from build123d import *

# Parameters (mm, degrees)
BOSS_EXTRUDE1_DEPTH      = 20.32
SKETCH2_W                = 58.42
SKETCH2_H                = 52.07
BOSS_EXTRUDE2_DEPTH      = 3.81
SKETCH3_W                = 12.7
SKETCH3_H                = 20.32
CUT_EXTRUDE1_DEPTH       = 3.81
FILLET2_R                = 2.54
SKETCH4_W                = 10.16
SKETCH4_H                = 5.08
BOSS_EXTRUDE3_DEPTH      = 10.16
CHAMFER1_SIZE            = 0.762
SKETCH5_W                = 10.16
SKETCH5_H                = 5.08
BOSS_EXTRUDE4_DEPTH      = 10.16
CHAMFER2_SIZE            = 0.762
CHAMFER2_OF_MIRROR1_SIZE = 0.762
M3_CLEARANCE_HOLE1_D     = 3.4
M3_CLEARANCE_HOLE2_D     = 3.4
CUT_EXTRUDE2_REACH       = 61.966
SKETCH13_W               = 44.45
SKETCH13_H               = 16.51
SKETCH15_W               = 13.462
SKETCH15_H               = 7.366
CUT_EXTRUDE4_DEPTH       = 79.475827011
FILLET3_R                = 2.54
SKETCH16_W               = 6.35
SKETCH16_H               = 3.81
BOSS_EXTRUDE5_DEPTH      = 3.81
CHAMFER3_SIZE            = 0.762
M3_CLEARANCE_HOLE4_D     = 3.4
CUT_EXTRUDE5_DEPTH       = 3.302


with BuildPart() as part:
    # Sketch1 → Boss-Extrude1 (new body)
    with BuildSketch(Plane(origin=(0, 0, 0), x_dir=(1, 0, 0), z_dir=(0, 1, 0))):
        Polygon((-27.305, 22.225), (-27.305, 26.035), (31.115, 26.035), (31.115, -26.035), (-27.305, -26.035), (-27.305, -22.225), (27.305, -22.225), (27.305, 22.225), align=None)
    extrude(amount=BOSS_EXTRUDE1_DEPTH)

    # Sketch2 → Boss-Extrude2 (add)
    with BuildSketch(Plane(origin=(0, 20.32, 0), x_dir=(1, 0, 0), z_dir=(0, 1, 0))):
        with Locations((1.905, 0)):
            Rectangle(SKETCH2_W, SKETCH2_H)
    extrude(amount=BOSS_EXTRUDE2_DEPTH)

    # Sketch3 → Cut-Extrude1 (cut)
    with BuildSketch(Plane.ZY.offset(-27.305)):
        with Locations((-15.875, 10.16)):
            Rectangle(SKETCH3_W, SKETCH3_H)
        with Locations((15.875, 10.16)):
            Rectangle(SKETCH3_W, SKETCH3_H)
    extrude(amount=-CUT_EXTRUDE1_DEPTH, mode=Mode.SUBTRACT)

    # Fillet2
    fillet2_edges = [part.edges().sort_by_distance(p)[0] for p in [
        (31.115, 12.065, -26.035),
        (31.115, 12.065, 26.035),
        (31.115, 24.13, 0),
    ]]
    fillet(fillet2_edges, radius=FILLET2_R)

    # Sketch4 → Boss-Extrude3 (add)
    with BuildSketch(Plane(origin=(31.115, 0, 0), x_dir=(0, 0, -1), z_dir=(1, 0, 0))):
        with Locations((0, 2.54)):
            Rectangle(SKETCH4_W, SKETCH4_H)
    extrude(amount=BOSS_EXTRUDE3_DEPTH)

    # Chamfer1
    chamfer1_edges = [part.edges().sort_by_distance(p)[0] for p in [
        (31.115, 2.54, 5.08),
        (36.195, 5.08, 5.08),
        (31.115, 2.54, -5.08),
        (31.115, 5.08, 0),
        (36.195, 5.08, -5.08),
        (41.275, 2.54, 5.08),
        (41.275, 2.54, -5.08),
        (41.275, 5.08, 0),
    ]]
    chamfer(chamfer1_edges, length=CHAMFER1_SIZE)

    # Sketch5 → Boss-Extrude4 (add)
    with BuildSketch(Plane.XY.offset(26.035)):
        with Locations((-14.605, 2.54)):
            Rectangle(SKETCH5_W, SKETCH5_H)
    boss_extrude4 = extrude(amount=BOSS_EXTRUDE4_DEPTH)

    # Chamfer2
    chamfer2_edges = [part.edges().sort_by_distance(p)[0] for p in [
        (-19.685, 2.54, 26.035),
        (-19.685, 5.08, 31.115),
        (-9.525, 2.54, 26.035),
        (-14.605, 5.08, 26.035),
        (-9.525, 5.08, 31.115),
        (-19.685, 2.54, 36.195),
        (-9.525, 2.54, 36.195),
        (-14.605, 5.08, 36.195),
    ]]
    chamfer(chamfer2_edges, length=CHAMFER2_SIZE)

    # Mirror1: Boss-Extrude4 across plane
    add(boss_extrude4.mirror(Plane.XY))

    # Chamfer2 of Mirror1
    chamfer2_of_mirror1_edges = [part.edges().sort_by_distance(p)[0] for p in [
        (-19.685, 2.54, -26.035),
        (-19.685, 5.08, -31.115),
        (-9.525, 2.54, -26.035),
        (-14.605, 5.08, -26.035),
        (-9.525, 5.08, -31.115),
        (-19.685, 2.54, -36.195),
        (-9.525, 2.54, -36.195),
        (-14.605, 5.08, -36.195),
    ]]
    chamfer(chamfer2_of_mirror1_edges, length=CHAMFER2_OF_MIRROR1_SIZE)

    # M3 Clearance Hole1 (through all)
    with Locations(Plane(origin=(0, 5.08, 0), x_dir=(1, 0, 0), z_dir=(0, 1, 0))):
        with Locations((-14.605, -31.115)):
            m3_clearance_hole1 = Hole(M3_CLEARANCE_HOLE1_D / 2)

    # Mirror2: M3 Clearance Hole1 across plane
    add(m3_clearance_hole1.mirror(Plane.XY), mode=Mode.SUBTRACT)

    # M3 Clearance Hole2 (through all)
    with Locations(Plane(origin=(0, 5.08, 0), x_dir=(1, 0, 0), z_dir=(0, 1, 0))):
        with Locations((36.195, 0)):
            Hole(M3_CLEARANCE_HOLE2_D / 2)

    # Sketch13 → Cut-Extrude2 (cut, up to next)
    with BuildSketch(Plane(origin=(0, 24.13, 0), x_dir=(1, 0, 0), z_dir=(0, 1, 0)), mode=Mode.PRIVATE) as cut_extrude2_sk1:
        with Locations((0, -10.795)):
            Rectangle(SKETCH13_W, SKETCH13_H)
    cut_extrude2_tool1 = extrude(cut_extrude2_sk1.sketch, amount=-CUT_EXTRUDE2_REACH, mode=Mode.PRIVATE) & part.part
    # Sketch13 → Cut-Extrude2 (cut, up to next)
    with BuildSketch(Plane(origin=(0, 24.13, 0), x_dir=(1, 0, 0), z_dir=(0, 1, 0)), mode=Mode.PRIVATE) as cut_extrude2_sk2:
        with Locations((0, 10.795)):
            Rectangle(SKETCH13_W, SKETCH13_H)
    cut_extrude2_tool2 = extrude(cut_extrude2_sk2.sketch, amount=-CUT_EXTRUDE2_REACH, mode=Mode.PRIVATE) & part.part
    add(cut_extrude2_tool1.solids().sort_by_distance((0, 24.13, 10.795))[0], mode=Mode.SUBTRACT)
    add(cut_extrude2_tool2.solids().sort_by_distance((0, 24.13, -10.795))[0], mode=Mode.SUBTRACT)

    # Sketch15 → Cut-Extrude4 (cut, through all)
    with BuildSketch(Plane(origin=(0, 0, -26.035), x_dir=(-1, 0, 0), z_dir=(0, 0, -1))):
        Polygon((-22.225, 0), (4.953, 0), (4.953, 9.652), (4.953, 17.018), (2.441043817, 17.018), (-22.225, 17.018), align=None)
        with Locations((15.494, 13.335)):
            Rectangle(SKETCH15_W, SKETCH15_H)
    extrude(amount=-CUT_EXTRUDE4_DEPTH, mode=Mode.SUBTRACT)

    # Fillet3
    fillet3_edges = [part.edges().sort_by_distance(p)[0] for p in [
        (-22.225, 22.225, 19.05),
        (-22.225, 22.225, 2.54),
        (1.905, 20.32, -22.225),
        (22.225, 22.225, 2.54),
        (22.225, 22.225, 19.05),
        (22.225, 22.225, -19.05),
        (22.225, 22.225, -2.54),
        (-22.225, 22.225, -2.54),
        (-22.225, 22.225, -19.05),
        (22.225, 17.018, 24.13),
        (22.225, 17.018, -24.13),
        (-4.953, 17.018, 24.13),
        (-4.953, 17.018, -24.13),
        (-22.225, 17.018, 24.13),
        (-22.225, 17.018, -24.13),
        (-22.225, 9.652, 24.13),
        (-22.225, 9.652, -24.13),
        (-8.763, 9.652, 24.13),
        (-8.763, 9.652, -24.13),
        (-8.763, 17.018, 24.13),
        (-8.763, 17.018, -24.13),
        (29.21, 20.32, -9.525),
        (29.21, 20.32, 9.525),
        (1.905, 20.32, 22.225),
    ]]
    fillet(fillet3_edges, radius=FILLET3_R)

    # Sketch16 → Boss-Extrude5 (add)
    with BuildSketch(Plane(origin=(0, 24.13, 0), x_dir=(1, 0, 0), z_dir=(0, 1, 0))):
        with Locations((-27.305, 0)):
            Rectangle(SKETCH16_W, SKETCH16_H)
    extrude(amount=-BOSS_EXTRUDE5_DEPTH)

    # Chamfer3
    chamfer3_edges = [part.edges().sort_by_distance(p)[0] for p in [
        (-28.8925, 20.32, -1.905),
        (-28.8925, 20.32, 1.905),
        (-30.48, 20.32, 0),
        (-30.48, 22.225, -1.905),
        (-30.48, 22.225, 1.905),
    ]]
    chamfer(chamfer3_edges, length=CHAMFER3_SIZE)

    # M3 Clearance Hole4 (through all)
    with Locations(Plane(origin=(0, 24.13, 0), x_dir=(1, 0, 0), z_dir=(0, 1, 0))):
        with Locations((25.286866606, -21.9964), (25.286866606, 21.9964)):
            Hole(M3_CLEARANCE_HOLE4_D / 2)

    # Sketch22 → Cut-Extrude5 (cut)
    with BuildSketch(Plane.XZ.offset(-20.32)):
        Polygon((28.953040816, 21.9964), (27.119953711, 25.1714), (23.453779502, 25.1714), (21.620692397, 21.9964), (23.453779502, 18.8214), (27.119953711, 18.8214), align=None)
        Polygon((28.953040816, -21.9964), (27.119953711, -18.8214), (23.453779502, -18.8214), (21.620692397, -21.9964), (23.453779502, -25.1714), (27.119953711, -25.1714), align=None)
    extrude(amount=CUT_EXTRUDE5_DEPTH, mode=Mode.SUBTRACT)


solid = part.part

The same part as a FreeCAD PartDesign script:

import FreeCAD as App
import Part
import Sketcher
from FreeCAD import Vector
Q = App.Units.Quantity


def edges_at(feature, points):
    """Names of the edges that pass closest to the given points."""
    edges = feature.Shape.Edges
    near = lambda p: min(range(len(edges)), key=lambda i: edges[i].distToShape(Part.Vertex(*p))[0])
    return sorted({f"Edge{near(p) + 1}" for p in points})

doc = App.newDocument("Part")
body = doc.addObject("PartDesign::Body", "Body")

# Sketch on XZ plane
sketch1 = body.newObject("Sketcher::SketchObject", "Sketch")
sketch1.AttachmentSupport = (doc.getObject("XZ_Plane"), [""])
sketch1.MapMode = "FlatFace"
sketch1.addGeometry([
    Part.LineSegment(Vector(-27.305, -26.035, 0), Vector(-27.305, -22.225, 0)),  # 0
    Part.LineSegment(Vector(-27.305, -22.225, 0), Vector(27.305, -22.225, 0)),  # 1
    Part.LineSegment(Vector(27.305, -22.225, 0), Vector(27.305, 22.225, 0)),  # 2
    Part.LineSegment(Vector(27.305, 22.225, 0), Vector(-27.305, 22.225, 0)),  # 3
    Part.LineSegment(Vector(-27.305, 22.225, 0), Vector(-27.305, 26.035, 0)),  # 4
    Part.LineSegment(Vector(-27.305, 26.035, 0), Vector(31.115, 26.035, 0)),  # 5
    Part.LineSegment(Vector(31.115, 26.035, 0), Vector(31.115, -26.035, 0)),  # 6
    Part.LineSegment(Vector(31.115, -26.035, 0), Vector(-27.305, -26.035, 0)),  # 7
], False)
sketch1.addConstraint([
    Sketcher.Constraint("Coincident", 0, 2, 1, 1),
    Sketcher.Constraint("Coincident", 1, 2, 2, 1),
    Sketcher.Constraint("Coincident", 2, 2, 3, 1),
    Sketcher.Constraint("Coincident", 3, 2, 4, 1),
    Sketcher.Constraint("Coincident", 4, 2, 5, 1),
    Sketcher.Constraint("Coincident", 5, 2, 6, 1),
    Sketcher.Constraint("Coincident", 6, 2, 7, 1),
    Sketcher.Constraint("Coincident", 7, 2, 0, 1),
    Sketcher.Constraint("Vertical", 0),
    Sketcher.Constraint("Horizontal", 1),
    Sketcher.Constraint("Vertical", 2),
    Sketcher.Constraint("Horizontal", 3),
    Sketcher.Constraint("Vertical", 4),
    Sketcher.Constraint("Horizontal", 5),
    Sketcher.Constraint("Vertical", 6),
    Sketcher.Constraint("Horizontal", 7),
    Sketcher.Constraint("Symmetric", 0, 2, 2, 2, -1, 1),
    Sketcher.Constraint("Symmetric", 4, 2, 7, 2, -1),
    Sketcher.Constraint("DistanceX", 5, 1, 5, 2, Q("2.3 in")),
    Sketcher.Constraint("DistanceX", 1, 1, 1, 2, Q("2.15 in")),
    Sketcher.Constraint("DistanceY", 0, 1, 0, 2, Q("0.15 in")),
    Sketcher.Constraint("DistanceY", 2, 1, 2, 2, Q("1.75 in")),
])
pad1 = body.newObject("PartDesign::Pad", "Pad")
pad1.Profile = sketch1
pad1.Length = Q("0.8 in")
pad1.Reversed = True

# Sketch on XZ plane
sketch2 = body.newObject("Sketcher::SketchObject", "Sketch001")
sketch2.AttachmentSupport = (doc.getObject("XZ_Plane"), [""])
sketch2.MapMode = "FlatFace"
sketch2.AttachmentOffset = App.Placement(Vector(0, 0, -0.8 * 25.4), App.Rotation())
sketch2.addGeometry([
    Part.LineSegment(Vector(-27.305, -26.035, 0), Vector(-27.305, 26.035, 0)),
    Part.LineSegment(Vector(-27.305, 26.035, 0), Vector(31.115, 26.035, 0)),
    Part.LineSegment(Vector(31.115, 26.035, 0), Vector(31.115, -26.035, 0)),
    Part.LineSegment(Vector(31.115, -26.035, 0), Vector(-27.305, -26.035, 0)),
], False)
sketch2.addConstraint([
    Sketcher.Constraint("Coincident", 0, 2, 1, 1),
    Sketcher.Constraint("Coincident", 1, 2, 2, 1),
    Sketcher.Constraint("Coincident", 2, 2, 3, 1),
    Sketcher.Constraint("Coincident", 3, 2, 0, 1),
    Sketcher.Constraint("Vertical", 0),
    Sketcher.Constraint("Horizontal", 1),
    Sketcher.Constraint("Vertical", 2),
    Sketcher.Constraint("Horizontal", 3),
    Sketcher.Constraint("DistanceX", 1, 1, 1, 2, Q("2.3 in")),
    Sketcher.Constraint("DistanceY", 0, 1, 0, 2, Q("2.05 in")),
    Sketcher.Constraint("DistanceX", 0, 2, -1, 1, Q("1.075 in")),
    Sketcher.Constraint("DistanceY", -1, 1, 0, 2, Q("1.025 in")),
])
pad2 = body.newObject("PartDesign::Pad", "Pad001")
pad2.Profile = sketch2
pad2.Length = Q("0.15 in")
pad2.Reversed = True

# Sketch on YZ plane
sketch3 = body.newObject("Sketcher::SketchObject", "Sketch002")
sketch3.AttachmentSupport = (doc.getObject("YZ_Plane"), [""])
sketch3.MapMode = "FlatFace"
sketch3.AttachmentOffset = App.Placement(Vector(0, 0, 1.075 * 25.4), App.Rotation())
sketch3.addGeometry([
    Part.LineSegment(Vector(20.32, -22.225, 0), Vector(0, -22.225, 0)),  # 0
    Part.LineSegment(Vector(0, -22.225, 0), Vector(0, -9.525, 0)),  # 1
    Part.LineSegment(Vector(0, -9.525, 0), Vector(20.32, -9.525, 0)),  # 2
    Part.LineSegment(Vector(20.32, -9.525, 0), Vector(20.32, -22.225, 0)),  # 3
    Part.LineSegment(Vector(20.32, 9.525, 0), Vector(0, 9.525, 0)),  # 4
    Part.LineSegment(Vector(0, 9.525, 0), Vector(0, 22.225, 0)),  # 5
    Part.LineSegment(Vector(0, 22.225, 0), Vector(20.32, 22.225, 0)),  # 6
    Part.LineSegment(Vector(20.32, 22.225, 0), Vector(20.32, 9.525, 0)),  # 7
], False)
sketch3.addConstraint([
    Sketcher.Constraint("Coincident", 0, 2, 1, 1),
    Sketcher.Constraint("Coincident", 1, 2, 2, 1),
    Sketcher.Constraint("Coincident", 2, 2, 3, 1),
    Sketcher.Constraint("Coincident", 3, 2, 0, 1),
    Sketcher.Constraint("Coincident", 4, 2, 5, 1),
    Sketcher.Constraint("Coincident", 5, 2, 6, 1),
    Sketcher.Constraint("Coincident", 6, 2, 7, 1),
    Sketcher.Constraint("Coincident", 7, 2, 4, 1),
    Sketcher.Constraint("Horizontal", 0),
    Sketcher.Constraint("Vertical", 1),
    Sketcher.Constraint("Horizontal", 2),
    Sketcher.Constraint("Vertical", 3),
    Sketcher.Constraint("Horizontal", 4),
    Sketcher.Constraint("Vertical", 5),
    Sketcher.Constraint("Horizontal", 6),
    Sketcher.Constraint("Vertical", 7),
    Sketcher.Constraint("Symmetric", 1, 2, 4, 2, -1, 1),
    Sketcher.Constraint("Symmetric", 0, 2, 5, 2, -1),
    Sketcher.Constraint("Vertical", 3, 2, 6, 2),
    Sketcher.Constraint("DistanceX", 0, 2, 0, 1, Q("0.8 in")),
    Sketcher.Constraint("DistanceY", 1, 1, 1, 2, Q("0.5 in")),
    Sketcher.Constraint("DistanceY", 1, 2, 4, 2, Q("0.75 in")),
])
pocket1 = body.newObject("PartDesign::Pocket", "Pocket")
pocket1.Profile = sketch3
pocket1.Length = Q("0.15 in")
pocket1.Reversed = True
doc.recompute()

fillet = body.newObject("PartDesign::Fillet", "Fillet")
fillet.Base = (pocket1, edges_at(pocket1, [(31.115, 12.065, -26.035), (31.115, 12.065, 26.035), (31.115, 24.13, 0)]))
fillet.Radius = Q("0.1 in")

# Sketch on YZ plane
sketch4 = body.newObject("Sketcher::SketchObject", "Sketch003")
sketch4.AttachmentSupport = (doc.getObject("YZ_Plane"), [""])
sketch4.MapMode = "FlatFace"
sketch4.AttachmentOffset = App.Placement(Vector(0, 0, 1.225 * 25.4), App.Rotation())
sketch4.addGeometry([
    Part.LineSegment(Vector(5.08, 5.08, 0), Vector(0, 5.08, 0)),
    Part.LineSegment(Vector(0, 5.08, 0), Vector(0, -5.08, 0)),
    Part.LineSegment(Vector(0, -5.08, 0), Vector(5.08, -5.08, 0)),
    Part.LineSegment(Vector(5.08, -5.08, 0), Vector(5.08, 5.08, 0)),
], False)
sketch4.addConstraint([
    Sketcher.Constraint("Coincident", 0, 2, 1, 1),
    Sketcher.Constraint("Coincident", 1, 2, 2, 1),
    Sketcher.Constraint("Coincident", 2, 2, 3, 1),
    Sketcher.Constraint("Coincident", 3, 2, 0, 1),
    Sketcher.Constraint("Horizontal", 0),
    Sketcher.Constraint("Vertical", 1),
    Sketcher.Constraint("Horizontal", 2),
    Sketcher.Constraint("Vertical", 3),
    Sketcher.Constraint("Symmetric", 0, 2, 1, 2, -1, 1),
    Sketcher.Constraint("DistanceX", 0, 2, 0, 1, Q("0.2 in")),
    Sketcher.Constraint("DistanceY", 1, 2, 1, 1, Q("0.4 in")),
])
pad3 = body.newObject("PartDesign::Pad", "Pad002")
pad3.Profile = sketch4
pad3.Length = Q("0.4 in")
doc.recompute()

chamfer = body.newObject("PartDesign::Chamfer", "Chamfer")
chamfer.Base = (pad3, edges_at(pad3, [
    (31.115, 2.54, 5.08),
    (36.195, 5.08, 5.08),
    (31.115, 2.54, -5.08),
    (31.115, 5.08, 0),
    (36.195, 5.08, -5.08),
    (41.275, 2.54, 5.08),
    (41.275, 2.54, -5.08),
    (41.275, 5.08, 0),
]))
chamfer.Size = Q("0.03 in")

# Sketch on XY plane
sketch5 = body.newObject("Sketcher::SketchObject", "Sketch004")
sketch5.AttachmentSupport = (doc.getObject("XY_Plane"), [""])
sketch5.MapMode = "FlatFace"
sketch5.AttachmentOffset = App.Placement(Vector(0, 0, 1.025 * 25.4), App.Rotation())
sketch5.addGeometry([
    Part.LineSegment(Vector(-19.685, 5.08, 0), Vector(-19.685, 0, 0)),
    Part.LineSegment(Vector(-19.685, 0, 0), Vector(-9.525, 0, 0)),
    Part.LineSegment(Vector(-9.525, 0, 0), Vector(-9.525, 5.08, 0)),
    Part.LineSegment(Vector(-9.525, 5.08, 0), Vector(-19.685, 5.08, 0)),
], False)
sketch5.addConstraint([
    Sketcher.Constraint("Coincident", 0, 2, 1, 1),
    Sketcher.Constraint("Coincident", 1, 2, 2, 1),
    Sketcher.Constraint("Coincident", 2, 2, 3, 1),
    Sketcher.Constraint("Coincident", 3, 2, 0, 1),
    Sketcher.Constraint("Vertical", 0),
    Sketcher.Constraint("Horizontal", 1),
    Sketcher.Constraint("Vertical", 2),
    Sketcher.Constraint("Horizontal", 3),
    Sketcher.Constraint("PointOnObject", 0, 2, -1),
    Sketcher.Constraint("DistanceX", 1, 1, 1, 2, Q("0.4 in")),
    Sketcher.Constraint("DistanceY", 0, 2, 0, 1, Q("0.2 in")),
    Sketcher.Constraint("DistanceX", 0, 2, -1, 1, Q("0.775 in")),
])
pad4 = body.newObject("PartDesign::Pad", "Pad003")
pad4.Profile = sketch5
pad4.Length = Q("0.4 in")
doc.recompute()

chamfer2 = body.newObject("PartDesign::Chamfer", "Chamfer001")
chamfer2.Base = (pad4, edges_at(pad4, [
    (-19.685, 2.54, 26.035),
    (-19.685, 5.08, 31.115),
    (-9.525, 2.54, 26.035),
    (-14.605, 5.08, 26.035),
    (-9.525, 5.08, 31.115),
    (-19.685, 2.54, 36.195),
    (-9.525, 2.54, 36.195),
    (-14.605, 5.08, 36.195),
]))
chamfer2.Size = Q("0.03 in")
doc.recompute()

mirrored = body.newObject("PartDesign::Mirrored", "Mirrored")
mirrored.Originals = [pad4]
mirrored.MirrorPlane = (doc.getObject("XY_Plane"), [""])
body.Tip = mirrored
doc.recompute()

chamfer3 = body.newObject("PartDesign::Chamfer", "Chamfer002")
chamfer3.Base = (mirrored, edges_at(mirrored, [
    (-19.685, 2.54, -26.035),
    (-19.685, 5.08, -31.115),
    (-9.525, 2.54, -26.035),
    (-14.605, 5.08, -26.035),
    (-9.525, 5.08, -31.115),
    (-19.685, 2.54, -36.195),
    (-9.525, 2.54, -36.195),
    (-14.605, 5.08, -36.195),
]))
chamfer3.Size = Q("0.03 in")

# Sketch on XZ plane
sketch6 = body.newObject("Sketcher::SketchObject", "Sketch005")
sketch6.AttachmentSupport = (doc.getObject("XZ_Plane"), [""])
sketch6.MapMode = "FlatFace"
sketch6.AttachmentOffset = App.Placement(Vector(0, 0, -0.2 * 25.4), App.Rotation())
sketch6.addGeometry(Part.Circle(Vector(-14.605, 31.115, 0), Vector(0, 0, 1), 1.7), False)
sketch6.addConstraint([
    Sketcher.Constraint("Diameter", 0, Q("3.4 mm")),
    Sketcher.Constraint("DistanceX", 0, 3, -1, 1, Q("0.575 in")),
    Sketcher.Constraint("DistanceY", -1, 1, 0, 3, Q("1.225 in")),
])
doc.recompute()
hole = body.newObject("PartDesign::Hole", "Hole")
hole.Profile = sketch6
hole.ThreadType = "None"
hole.Diameter = 3.4
hole.DepthType = "ThroughAll"
hole.Reversed = True
doc.recompute()

mirrored2 = body.newObject("PartDesign::Mirrored", "Mirrored001")
mirrored2.Originals = [hole]
mirrored2.MirrorPlane = (doc.getObject("XY_Plane"), [""])
body.Tip = mirrored2

# Sketch on XZ plane
sketch7 = body.newObject("Sketcher::SketchObject", "Sketch006")
sketch7.AttachmentSupport = (doc.getObject("XZ_Plane"), [""])
sketch7.MapMode = "FlatFace"
sketch7.AttachmentOffset = App.Placement(Vector(0, 0, -0.2 * 25.4), App.Rotation())
sketch7.addGeometry(Part.Circle(Vector(36.195, 0, 0), Vector(0, 0, 1), 1.7), False)
sketch7.addConstraint([
    Sketcher.Constraint("PointOnObject", 0, 3, -1),
    Sketcher.Constraint("Diameter", 0, Q("3.4 mm")),
    Sketcher.Constraint("DistanceX", -1, 1, 0, 3, Q("1.425 in")),
])
doc.recompute()
hole2 = body.newObject("PartDesign::Hole", "Hole001")
hole2.Profile = sketch7
hole2.ThreadType = "None"
hole2.Diameter = 3.4
hole2.DepthType = "ThroughAll"
hole2.Reversed = True

# Sketch on XZ plane
sketch8 = body.newObject("Sketcher::SketchObject", "Sketch007")
sketch8.AttachmentSupport = (doc.getObject("XZ_Plane"), [""])
sketch8.MapMode = "FlatFace"
sketch8.AttachmentOffset = App.Placement(Vector(0, 0, -0.95 * 25.4), App.Rotation())
sketch8.addGeometry([
    Part.LineSegment(Vector(-22.225, 2.54, 0), Vector(-22.225, 19.05, 0)),
    Part.LineSegment(Vector(-22.225, 19.05, 0), Vector(22.225, 19.05, 0)),
    Part.LineSegment(Vector(22.225, 19.05, 0), Vector(22.225, 2.54, 0)),
    Part.LineSegment(Vector(22.225, 2.54, 0), Vector(-22.225, 2.54, 0)),
], False)
sketch8.addConstraint([
    Sketcher.Constraint("Coincident", 0, 2, 1, 1),
    Sketcher.Constraint("Coincident", 1, 2, 2, 1),
    Sketcher.Constraint("Coincident", 2, 2, 3, 1),
    Sketcher.Constraint("Coincident", 3, 2, 0, 1),
    Sketcher.Constraint("Vertical", 0),
    Sketcher.Constraint("Horizontal", 1),
    Sketcher.Constraint("Vertical", 2),
    Sketcher.Constraint("Horizontal", 3),
    Sketcher.Constraint("DistanceX", 1, 1, 1, 2, Q("1.75 in")),
    Sketcher.Constraint("DistanceY", 0, 1, 0, 2, Q("0.65 in")),
    Sketcher.Constraint("DistanceY", -1, 1, 2, 2, Q("0.1 in")),
    Sketcher.Constraint("DistanceX", 0, 2, -1, 1, Q("0.875 in")),
])
pocket2 = body.newObject("PartDesign::Pocket", "Pocket001")
pocket2.Profile = sketch8
pocket2.Type = "UpToFirst"
pocket2.Reversed = True

# Sketch on XZ plane
sketch9 = body.newObject("Sketcher::SketchObject", "Sketch008")
sketch9.AttachmentSupport = (doc.getObject("XZ_Plane"), [""])
sketch9.MapMode = "FlatFace"
sketch9.AttachmentOffset = App.Placement(Vector(0, 0, -0.95 * 25.4), App.Rotation())
sketch9.addGeometry([
    Part.LineSegment(Vector(-22.225, -19.05, 0), Vector(-22.225, -2.54, 0)),
    Part.LineSegment(Vector(-22.225, -2.54, 0), Vector(22.225, -2.54, 0)),
    Part.LineSegment(Vector(22.225, -2.54, 0), Vector(22.225, -19.05, 0)),
    Part.LineSegment(Vector(22.225, -19.05, 0), Vector(-22.225, -19.05, 0)),
], False)
sketch9.addConstraint([
    Sketcher.Constraint("Coincident", 0, 2, 1, 1),
    Sketcher.Constraint("Coincident", 1, 2, 2, 1),
    Sketcher.Constraint("Coincident", 2, 2, 3, 1),
    Sketcher.Constraint("Coincident", 3, 2, 0, 1),
    Sketcher.Constraint("Vertical", 0),
    Sketcher.Constraint("Horizontal", 1),
    Sketcher.Constraint("Vertical", 2),
    Sketcher.Constraint("Horizontal", 3),
    Sketcher.Constraint("DistanceX", 1, 1, 1, 2, Q("1.75 in")),
    Sketcher.Constraint("DistanceY", 0, 1, 0, 2, Q("0.65 in")),
    Sketcher.Constraint("DistanceY", 0, 2, -1, 1, Q("0.1 in")),
    Sketcher.Constraint("DistanceX", 0, 2, -1, 1, Q("0.875 in")),
])
pocket3 = body.newObject("PartDesign::Pocket", "Pocket002")
pocket3.Profile = sketch9
pocket3.Type = "UpToFirst"
pocket3.Reversed = True

# Sketch on XY plane
sketch10 = body.newObject("Sketcher::SketchObject", "Sketch009")
sketch10.AttachmentSupport = (doc.getObject("XY_Plane"), [""])
sketch10.MapMode = "FlatFace"
sketch10.AttachmentOffset = App.Placement(Vector(0, 0, -1.025 * 25.4), App.Rotation())
sketch10.addGeometry([
    Part.LineSegment(Vector(22.225, 0, 0), Vector(-4.953, 0, 0)),  # 0
    Part.LineSegment(Vector(-4.953, 0, 0), Vector(-4.953, 17.018, 0)),  # 1
    Part.LineSegment(Vector(-4.953, 17.018, 0), Vector(22.225, 17.018, 0)),  # 2
    Part.LineSegment(Vector(22.225, 17.018, 0), Vector(22.225, 0, 0)),  # 3
    Part.LineSegment(Vector(-8.763, 17.018, 0), Vector(-8.763, 9.652, 0)),  # 4
    Part.LineSegment(Vector(-8.763, 9.652, 0), Vector(-22.225, 9.652, 0)),  # 5
    Part.LineSegment(Vector(-22.225, 9.652, 0), Vector(-22.225, 17.018, 0)),  # 6
    Part.LineSegment(Vector(-22.225, 17.018, 0), Vector(-8.763, 17.018, 0)),  # 7
], False)
sketch10.addConstraint([
    Sketcher.Constraint("Coincident", 0, 2, 1, 1),
    Sketcher.Constraint("Coincident", 1, 2, 2, 1),
    Sketcher.Constraint("Coincident", 2, 2, 3, 1),
    Sketcher.Constraint("Coincident", 3, 2, 0, 1),
    Sketcher.Constraint("Coincident", 4, 2, 5, 1),
    Sketcher.Constraint("Coincident", 5, 2, 6, 1),
    Sketcher.Constraint("Coincident", 6, 2, 7, 1),
    Sketcher.Constraint("Coincident", 7, 2, 4, 1),
    Sketcher.Constraint("Horizontal", 0),
    Sketcher.Constraint("Vertical", 1),
    Sketcher.Constraint("Horizontal", 2),
    Sketcher.Constraint("Vertical", 3),
    Sketcher.Constraint("Vertical", 4),
    Sketcher.Constraint("Horizontal", 5),
    Sketcher.Constraint("Vertical", 6),
    Sketcher.Constraint("Horizontal", 7),
    Sketcher.Constraint("Symmetric", 2, 2, 6, 2, -2),
    Sketcher.Constraint("PointOnObject", 0, 2, -1),
    Sketcher.Constraint("DistanceX", 0, 2, 0, 1, Q("1.07 in")),
    Sketcher.Constraint("DistanceX", 5, 2, 5, 1, Q("0.53 in")),
    Sketcher.Constraint("DistanceY", 1, 1, 1, 2, Q("0.67 in")),
    Sketcher.Constraint("DistanceY", 4, 2, 4, 1, Q("0.29 in")),
    Sketcher.Constraint("DistanceX", 4, 2, 1, 2, Q("0.15 in")),
])
pocket4 = body.newObject("PartDesign::Pocket", "Pocket003")
pocket4.Profile = sketch10
pocket4.Type = "ThroughAll"
pocket4.Reversed = True
doc.recompute()

fillet2 = body.newObject("PartDesign::Fillet", "Fillet001")
fillet2.Base = (pocket4, edges_at(pocket4, [
    (-22.225, 22.225, 19.05),
    (-22.225, 22.225, 2.54),
    (1.905, 20.32, -22.225),
    (22.225, 22.225, 2.54),
    (22.225, 22.225, 19.05),
    (22.225, 22.225, -19.05),
    (22.225, 22.225, -2.54),
    (-22.225, 22.225, -2.54),
    (-22.225, 22.225, -19.05),
    (22.225, 17.018, 24.13),
    (22.225, 17.018, -24.13),
    (-4.953, 17.018, 24.13),
    (-4.953, 17.018, -24.13),
    (-22.225, 17.018, 24.13),
    (-22.225, 17.018, -24.13),
    (-22.225, 9.652, 24.13),
    (-22.225, 9.652, -24.13),
    (-8.763, 9.652, 24.13),
    (-8.763, 9.652, -24.13),
    (-8.763, 17.018, 24.13),
    (-8.763, 17.018, -24.13),
    (29.21, 20.32, -9.525),
    (29.21, 20.32, 9.525),
    (1.905, 20.32, 22.225),
]))
fillet2.Radius = Q("0.1 in")

# Sketch on XZ plane
sketch11 = body.newObject("Sketcher::SketchObject", "Sketch010")
sketch11.AttachmentSupport = (doc.getObject("XZ_Plane"), [""])
sketch11.MapMode = "FlatFace"
sketch11.AttachmentOffset = App.Placement(Vector(0, 0, -0.95 * 25.4), App.Rotation())
sketch11.addGeometry([
    Part.LineSegment(Vector(-30.48, -1.905, 0), Vector(-30.48, 1.905, 0)),
    Part.LineSegment(Vector(-30.48, 1.905, 0), Vector(-24.13, 1.905, 0)),
    Part.LineSegment(Vector(-24.13, 1.905, 0), Vector(-24.13, -1.905, 0)),
    Part.LineSegment(Vector(-24.13, -1.905, 0), Vector(-30.48, -1.905, 0)),
], False)
sketch11.addConstraint([
    Sketcher.Constraint("Coincident", 0, 2, 1, 1),
    Sketcher.Constraint("Coincident", 1, 2, 2, 1),
    Sketcher.Constraint("Coincident", 2, 2, 3, 1),
    Sketcher.Constraint("Coincident", 3, 2, 0, 1),
    Sketcher.Constraint("Vertical", 0),
    Sketcher.Constraint("Horizontal", 1),
    Sketcher.Constraint("Vertical", 2),
    Sketcher.Constraint("Horizontal", 3),
    Sketcher.Constraint("DistanceX", 1, 1, 1, 2, Q("0.25 in")),
    Sketcher.Constraint("DistanceY", 0, 1, 0, 2, Q("0.15 in")),
    Sketcher.Constraint("DistanceX", 0, 2, -1, 1, Q("1.2 in")),
    Sketcher.Constraint("DistanceY", -1, 1, 0, 2, Q("0.075 in")),
])
pad5 = body.newObject("PartDesign::Pad", "Pad004")
pad5.Profile = sketch11
pad5.Length = Q("0.15 in")
doc.recompute()

chamfer4 = body.newObject("PartDesign::Chamfer", "Chamfer003")
chamfer4.Base = (pad5, edges_at(pad5, [
    (-28.892, 20.32, -1.905),
    (-28.892, 20.32, 1.905),
    (-30.48, 20.32, 0),
    (-30.48, 22.225, -1.905),
    (-30.48, 22.225, 1.905),
]))
chamfer4.Size = Q("0.03 in")

# Sketch on XZ plane
sketch12 = body.newObject("Sketcher::SketchObject", "Sketch011")
sketch12.AttachmentSupport = (doc.getObject("XZ_Plane"), [""])
sketch12.MapMode = "FlatFace"
sketch12.AttachmentOffset = App.Placement(Vector(0, 0, -0.95 * 25.4), App.Rotation())
sketch12.addGeometry([
    Part.Circle(Vector(25.286867, 21.9964, 0), Vector(0, 0, 1), 1.7),
    Part.Circle(Vector(25.286867, -21.9964, 0), Vector(0, 0, 1), 1.7),
], False)
sketch12.addConstraint([
    Sketcher.Constraint("Equal", 0, 1),
    Sketcher.Constraint("Symmetric", 0, 3, 1, 3, -1),
    Sketcher.Constraint("Diameter", 0, Q("3.4 mm")),
    Sketcher.Constraint("DistanceY", -1, 1, 0, 3, Q("0.866 in")),
    Sketcher.Constraint("DistanceX", -1, 1, 0, 3, Q("25.286867 mm")),
])
doc.recompute()
hole3 = body.newObject("PartDesign::Hole", "Hole002")
hole3.Profile = sketch12
hole3.ThreadType = "None"
hole3.Diameter = 3.4
hole3.DepthType = "ThroughAll"
hole3.Reversed = True

# Sketch on XZ plane
sketch13 = body.newObject("Sketcher::SketchObject", "Sketch012")
sketch13.AttachmentSupport = (doc.getObject("XZ_Plane"), [""])
sketch13.MapMode = "FlatFace"
sketch13.AttachmentOffset = App.Placement(Vector(0, 0, -0.8 * 25.4), App.Rotation())
sketch13.addGeometry([
    Part.LineSegment(Vector(28.953041, 21.9964, 0), Vector(27.119954, 25.1714, 0)),  # 0
    Part.LineSegment(Vector(27.119954, 25.1714, 0), Vector(23.45378, 25.1714, 0)),  # 1
    Part.LineSegment(Vector(23.45378, 25.1714, 0), Vector(21.620692, 21.9964, 0)),  # 2
    Part.LineSegment(Vector(21.620692, 21.9964, 0), Vector(23.45378, 18.8214, 0)),  # 3
    Part.LineSegment(Vector(23.45378, 18.8214, 0), Vector(27.119954, 18.8214, 0)),  # 4
    Part.LineSegment(Vector(27.119954, 18.8214, 0), Vector(28.953041, 21.9964, 0)),  # 5
    Part.LineSegment(Vector(28.953041, -21.9964, 0), Vector(27.119954, -18.8214, 0)),  # 6
    Part.LineSegment(Vector(27.119954, -18.8214, 0), Vector(23.45378, -18.8214, 0)),  # 7
    Part.LineSegment(Vector(23.45378, -18.8214, 0), Vector(21.620692, -21.9964, 0)),  # 8
    Part.LineSegment(Vector(21.620692, -21.9964, 0), Vector(23.45378, -25.1714, 0)),  # 9
    Part.LineSegment(Vector(23.45378, -25.1714, 0), Vector(27.119954, -25.1714, 0)),  # 10
    Part.LineSegment(Vector(27.119954, -25.1714, 0), Vector(28.953041, -21.9964, 0)),  # 11
], False)
sketch13.addConstraint([
    Sketcher.Constraint("Coincident", 0, 2, 1, 1),
    Sketcher.Constraint("Coincident", 1, 2, 2, 1),
    Sketcher.Constraint("Coincident", 2, 2, 3, 1),
    Sketcher.Constraint("Coincident", 3, 2, 4, 1),
    Sketcher.Constraint("Coincident", 4, 2, 5, 1),
    Sketcher.Constraint("Coincident", 5, 2, 0, 1),
    Sketcher.Constraint("Coincident", 6, 2, 7, 1),
    Sketcher.Constraint("Coincident", 7, 2, 8, 1),
    Sketcher.Constraint("Coincident", 8, 2, 9, 1),
    Sketcher.Constraint("Coincident", 9, 2, 10, 1),
    Sketcher.Constraint("Coincident", 10, 2, 11, 1),
    Sketcher.Constraint("Coincident", 11, 2, 6, 1),
    Sketcher.Constraint("Horizontal", 1),
    Sketcher.Constraint("Horizontal", 4),
    Sketcher.Constraint("Horizontal", 7),
    Sketcher.Constraint("Horizontal", 10),
    Sketcher.Constraint("Symmetric", 4, 2, 6, 2, -1),
    Sketcher.Constraint("Symmetric", 2, 2, 8, 2, -1),
    Sketcher.Constraint("Symmetric", 1, 2, 9, 2, -1),
    Sketcher.Constraint("Symmetric", 5, 2, 11, 2, -1),
    Sketcher.Constraint("Parallel", 0, 3),
    Sketcher.Constraint("Parallel", 2, 5),
    Sketcher.Constraint("Parallel", 3, 6),
    Sketcher.Constraint("Parallel", 5, 8),
    Sketcher.Constraint("Parallel", 8, 11),
    Sketcher.Constraint("Horizontal", 2, 2, 5, 2),
    Sketcher.Constraint("Vertical", 1, 2, 3, 2),
    Sketcher.Constraint("Angle", 0, Q("120 deg")),
    Sketcher.Constraint("DistanceY", 3, 2, 1, 2, Q("0.25 in")),
    Sketcher.Constraint("DistanceY", -1, 1, 0, 2, Q("0.991 in")),
    Sketcher.Constraint("DistanceX", 1, 2, 1, 1, Q("3.666174 mm")),
    Sketcher.Constraint("DistanceX", -1, 1, 1, 2, Q("23.45378 mm")),
])
pocket5 = body.newObject("PartDesign::Pocket", "Pocket004")
pocket5.Profile = sketch13
pocket5.Length = Q("0.13 in")
pocket5.Reversed = True

doc.recompute()
